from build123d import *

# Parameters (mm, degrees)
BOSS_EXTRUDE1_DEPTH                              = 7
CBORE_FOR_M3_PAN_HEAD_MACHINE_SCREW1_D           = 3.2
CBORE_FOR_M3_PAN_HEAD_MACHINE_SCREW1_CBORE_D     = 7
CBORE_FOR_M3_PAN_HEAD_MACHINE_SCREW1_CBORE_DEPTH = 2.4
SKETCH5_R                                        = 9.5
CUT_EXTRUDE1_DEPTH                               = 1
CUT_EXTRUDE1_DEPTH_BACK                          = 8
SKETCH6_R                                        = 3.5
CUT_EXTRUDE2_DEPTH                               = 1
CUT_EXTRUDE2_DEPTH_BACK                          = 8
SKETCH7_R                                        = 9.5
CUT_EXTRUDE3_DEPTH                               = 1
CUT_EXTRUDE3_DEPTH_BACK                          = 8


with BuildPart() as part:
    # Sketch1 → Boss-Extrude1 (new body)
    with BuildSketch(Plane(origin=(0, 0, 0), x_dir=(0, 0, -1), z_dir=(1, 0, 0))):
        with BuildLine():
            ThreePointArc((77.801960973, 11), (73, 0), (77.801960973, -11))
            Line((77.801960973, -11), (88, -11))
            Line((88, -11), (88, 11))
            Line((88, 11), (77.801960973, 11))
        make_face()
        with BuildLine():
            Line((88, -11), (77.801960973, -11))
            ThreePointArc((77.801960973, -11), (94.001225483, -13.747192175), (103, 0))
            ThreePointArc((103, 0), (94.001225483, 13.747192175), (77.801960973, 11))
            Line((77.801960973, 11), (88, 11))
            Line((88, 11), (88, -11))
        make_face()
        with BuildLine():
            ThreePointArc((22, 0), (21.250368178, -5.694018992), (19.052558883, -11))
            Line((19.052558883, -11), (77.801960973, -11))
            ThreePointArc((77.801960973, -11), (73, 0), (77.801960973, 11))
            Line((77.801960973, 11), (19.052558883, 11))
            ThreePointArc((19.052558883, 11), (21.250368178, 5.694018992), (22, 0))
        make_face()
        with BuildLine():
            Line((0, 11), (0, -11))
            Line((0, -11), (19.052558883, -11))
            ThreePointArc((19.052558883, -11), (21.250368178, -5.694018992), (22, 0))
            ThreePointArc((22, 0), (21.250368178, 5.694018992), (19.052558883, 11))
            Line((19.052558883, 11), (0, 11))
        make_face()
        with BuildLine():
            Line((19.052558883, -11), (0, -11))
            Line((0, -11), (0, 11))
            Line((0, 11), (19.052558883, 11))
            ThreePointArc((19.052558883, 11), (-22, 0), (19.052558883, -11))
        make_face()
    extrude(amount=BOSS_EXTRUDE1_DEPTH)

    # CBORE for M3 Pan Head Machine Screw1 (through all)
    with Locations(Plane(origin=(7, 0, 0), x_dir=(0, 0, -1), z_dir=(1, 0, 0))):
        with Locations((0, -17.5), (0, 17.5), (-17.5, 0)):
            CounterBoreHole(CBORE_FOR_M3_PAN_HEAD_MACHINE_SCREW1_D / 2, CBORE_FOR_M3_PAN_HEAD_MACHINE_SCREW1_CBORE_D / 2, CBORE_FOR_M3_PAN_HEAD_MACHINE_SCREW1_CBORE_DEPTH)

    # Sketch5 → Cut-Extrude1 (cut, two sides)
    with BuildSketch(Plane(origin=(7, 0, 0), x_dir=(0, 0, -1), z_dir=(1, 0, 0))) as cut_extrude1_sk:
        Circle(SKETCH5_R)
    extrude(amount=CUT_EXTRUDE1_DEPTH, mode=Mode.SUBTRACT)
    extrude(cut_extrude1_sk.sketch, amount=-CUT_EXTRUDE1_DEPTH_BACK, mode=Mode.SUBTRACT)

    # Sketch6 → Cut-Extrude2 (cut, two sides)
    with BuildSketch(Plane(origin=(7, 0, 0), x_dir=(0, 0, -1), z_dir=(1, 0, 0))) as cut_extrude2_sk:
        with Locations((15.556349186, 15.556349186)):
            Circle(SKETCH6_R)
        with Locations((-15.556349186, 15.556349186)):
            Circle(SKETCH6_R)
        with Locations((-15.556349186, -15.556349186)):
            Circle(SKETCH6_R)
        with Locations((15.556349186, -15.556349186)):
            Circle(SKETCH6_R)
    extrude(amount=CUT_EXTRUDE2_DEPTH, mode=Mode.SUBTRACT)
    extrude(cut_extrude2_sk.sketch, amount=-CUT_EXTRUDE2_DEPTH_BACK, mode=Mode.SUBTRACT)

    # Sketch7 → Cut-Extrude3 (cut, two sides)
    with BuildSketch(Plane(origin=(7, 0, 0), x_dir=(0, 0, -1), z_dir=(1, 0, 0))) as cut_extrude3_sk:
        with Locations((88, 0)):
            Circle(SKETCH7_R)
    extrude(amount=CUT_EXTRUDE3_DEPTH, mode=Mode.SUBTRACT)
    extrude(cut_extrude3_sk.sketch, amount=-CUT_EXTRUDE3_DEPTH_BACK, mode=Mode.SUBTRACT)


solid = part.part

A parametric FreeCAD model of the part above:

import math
import FreeCAD as App
import Part
import Sketcher

V = App.Vector

doc = App.newDocument("Part")
body = doc.addObject("PartDesign::Body", "Body")

# Sketch on YZ plane
sketch1 = doc.addObject("Sketcher::SketchObject", "Sketch")
body.addObject(sketch1)
sketch1.AttachmentSupport = (doc.YZ_Plane, [""])
sketch1.MapMode = "FlatFace"
sketch1.addGeometry([
    Part.LineSegment(V(11, -78, 0), V(11, -19, 0)),  # 0
    Part.ArcOfCircle(Part.Circle(V(0, 0, 0), V(0, 0, 1), 22), math.radians(-60), math.radians(240)),  # 1
    Part.LineSegment(V(-11, -19, 0), V(-11, -78, 0)),  # 2
    Part.ArcOfCircle(Part.Circle(V(0, -88, 0), V(0, 0, 1), 15), math.radians(137), math.radians(270)),  # 3
    Part.ArcOfCircle(Part.Circle(V(0, -88, 0), V(0, 0, 1), 15), math.radians(-90), math.radians(43)),  # 4
], False)
sketch1.addConstraint([
    Sketcher.Constraint("Coincident", 0, 2, 1, 1),
    Sketcher.Constraint("Coincident", 1, 2, 2, 1),
    Sketcher.Constraint("Coincident", 2, 2, 3, 1),
    Sketcher.Constraint("Tangent", 3, 2, 4, 1),
    Sketcher.Constraint("Coincident", 4, 2, 0, 1),
    Sketcher.Constraint("Vertical", 0),
    Sketcher.Constraint("Vertical", 2),
    Sketcher.Constraint("Coincident", 1, 3, -1, 1),
    Sketcher.Constraint("Equal", 3, 4),
    Sketcher.Constraint("Symmetric", 2, 2, 4, 2, -2),
    Sketcher.Constraint("PointOnObject", 3, 2, -2),
    Sketcher.Constraint("Radius", 1, 22.0),
    Sketcher.Constraint("Radius", 3, 15.0),
    Sketcher.Constraint("DistanceY", 3, 3, -1, 1, 88.0),
    Sketcher.Constraint("DistanceX", -1, 1, 0, 2, 11.0),
])
pad1 = doc.addObject("PartDesign::Pad", "Pad")
body.addObject(pad1)
pad1.Profile = sketch1
pad1.Length = 7

# Sketch on YZ plane
sketch2 = doc.addObject("Sketcher::SketchObject", "Sketch001")
body.addObject(sketch2)
sketch2.AttachmentSupport = (doc.YZ_Plane, [""])
sketch2.MapMode = "FlatFace"
sketch2.AttachmentOffset = App.Placement(V(0, 0, 7), App.Rotation())
sketch2.addGeometry([
    Part.Circle(V(-17.5, 0, 0), V(0, 0, 1), 1.6),
    Part.Circle(V(17.5, 0, 0), V(0, 0, 1), 1.6),
    Part.Circle(V(0, 17.5, 0), V(0, 0, 1), 1.6),
], False)
sketch2.addConstraint([
    Sketcher.Constraint("Equal", 0, 1),
    Sketcher.Constraint("Equal", 1, 2),
    Sketcher.Constraint("Symmetric", 0, 3, 1, 3, -1, 1),
    Sketcher.Constraint("PointOnObject", 0, 3, -1),
    Sketcher.Constraint("PointOnObject", 2, 3, -2),
    Sketcher.Constraint("Diameter", 0, 3.2),
    Sketcher.Constraint("DistanceX", 0, 3, 1, 3, 35.0),
    Sketcher.Constraint("DistanceY", -1, 1, 2, 3, 17.5),
])
doc.recompute()
hole = doc.addObject("PartDesign::Hole", "Hole")
body.addObject(hole)
hole.Profile = sketch2
hole.ThreadType = "None"
hole.Diameter = 3.2
hole.DepthType = "ThroughAll"
hole.HoleCutType = "Counterbore"
hole.HoleCutDiameter = 7
hole.HoleCutDepth = 2.4

# Sketch on YZ plane
sketch3 = doc.addObject("Sketcher::SketchObject", "Sketch002")
body.addObject(sketch3)
sketch3.AttachmentSupport = (doc.YZ_Plane, [""])
sketch3.MapMode = "FlatFace"
sketch3.AttachmentOffset = App.Placement(V(0, 0, 7), App.Rotation())
sketch3.addGeometry(Part.Circle(V(0, 0, 0), V(0, 0, 1), 10), False)
sketch3.addConstraint([
    Sketcher.Constraint("Coincident", 0, 3, -1, 1),
    Sketcher.Constraint("Diameter", 0, 19.0),
])
pocket1 = doc.addObject("PartDesign::Pocket", "Pocket")
body.addObject(pocket1)
pocket1.Profile = sketch3
pocket1.Type = "ThroughAll"
pocket1.Midplane = True

# Sketch on YZ plane
sketch4 = doc.addObject("Sketcher::SketchObject", "Sketch003")
body.addObject(sketch4)
sketch4.AttachmentSupport = (doc.YZ_Plane, [""])
sketch4.MapMode = "FlatFace"
sketch4.AttachmentOffset = App.Placement(V(0, 0, 7), App.Rotation())
sketch4.addGeometry([
    Part.Circle(V(15.6, -15.6, 0), V(0, 0, 1), 3.5),
    Part.Circle(V(15.6, 15.6, 0), V(0, 0, 1), 3.5),
    Part.Circle(V(-15.6, 15.6, 0), V(0, 0, 1), 3.5),
    Part.Circle(V(-15.6, -15.6, 0), V(0, 0, 1), 3.5),
], False)
sketch4.addConstraint([
    Sketcher.Constraint("Equal", 0, 1),
    Sketcher.Constraint("Equal", 1, 2),
    Sketcher.Constraint("Equal", 2, 3),
    Sketcher.Constraint("Symmetric", 0, 3, 2, 3, -1, 1),
    Sketcher.Constraint("Symmetric", 1, 3, 3, 3, -1, 1),
    Sketcher.Constraint("Symmetric", 1, 3, 2, 3, -2),
    Sketcher.Constraint("Diameter", 0, 7.0),
    Sketcher.Constraint("DistanceY", 0, 3, 1, 3, 31.112698),
    Sketcher.Constraint("DistanceX", 2, 3, 1, 3, 31.112698),
])
pocket2 = doc.addObject("PartDesign::Pocket", "Pocket001")
body.addObject(pocket2)
pocket2.Profile = sketch4
pocket2.Type = "ThroughAll"
pocket2.Midplane = True

# Sketch on YZ plane
sketch5 = doc.addObject("Sketcher::SketchObject", "Sketch004")
body.addObject(sketch5)
sketch5.AttachmentSupport = (doc.YZ_Plane, [""])
sketch5.MapMode = "FlatFace"
sketch5.AttachmentOffset = App.Placement(V(0, 0, 7), App.Rotation())
sketch5.addGeometry(Part.Circle(V(0, -88, 0), V(0, 0, 1), 10), False)
sketch5.addConstraint([
    Sketcher.Constraint("PointOnObject", 0, 3, -2),
    Sketcher.Constraint("Diameter", 0, 19.0),
    Sketcher.Constraint("DistanceY", 0, 3, -1, 1, 88.0),
])
pocket3 = doc.addObject("PartDesign::Pocket", "Pocket002")
body.addObject(pocket3)
pocket3.Profile = sketch5
pocket3.Type = "ThroughAll"
pocket3.Midplane = True

doc.recompute()
